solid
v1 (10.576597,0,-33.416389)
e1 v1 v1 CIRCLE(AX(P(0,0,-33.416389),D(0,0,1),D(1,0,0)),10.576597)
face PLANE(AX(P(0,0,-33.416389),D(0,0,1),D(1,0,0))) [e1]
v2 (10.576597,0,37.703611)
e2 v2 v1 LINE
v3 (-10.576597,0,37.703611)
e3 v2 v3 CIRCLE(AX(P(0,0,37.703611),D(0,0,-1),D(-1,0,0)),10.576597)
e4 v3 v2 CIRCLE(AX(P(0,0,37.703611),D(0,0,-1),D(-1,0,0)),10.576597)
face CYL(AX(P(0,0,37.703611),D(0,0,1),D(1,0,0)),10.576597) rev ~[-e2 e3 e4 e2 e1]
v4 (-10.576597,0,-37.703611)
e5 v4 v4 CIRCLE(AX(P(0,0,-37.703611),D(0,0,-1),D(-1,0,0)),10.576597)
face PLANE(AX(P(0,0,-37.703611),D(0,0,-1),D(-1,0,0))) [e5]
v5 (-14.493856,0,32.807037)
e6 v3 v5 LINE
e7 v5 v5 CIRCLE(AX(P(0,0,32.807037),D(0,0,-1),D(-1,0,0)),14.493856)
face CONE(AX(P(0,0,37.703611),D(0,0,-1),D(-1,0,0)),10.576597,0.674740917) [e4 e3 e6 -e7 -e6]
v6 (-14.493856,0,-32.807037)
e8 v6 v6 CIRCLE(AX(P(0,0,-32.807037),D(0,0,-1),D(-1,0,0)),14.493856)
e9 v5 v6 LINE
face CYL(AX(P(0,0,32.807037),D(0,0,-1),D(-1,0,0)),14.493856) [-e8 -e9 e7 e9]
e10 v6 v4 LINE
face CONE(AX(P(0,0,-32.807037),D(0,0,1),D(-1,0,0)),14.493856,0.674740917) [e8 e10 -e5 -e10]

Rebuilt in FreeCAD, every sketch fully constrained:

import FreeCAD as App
import Part
import Sketcher
Q = App.Units.Quantity

doc = App.newDocument("Part")
body = doc.addObject("PartDesign::Body", "Body")

# Sketch on XZ plane
sketch1 = doc.addObject("Sketcher::SketchObject", "Sketch")
body.addObject(sketch1)
sketch1.AttachmentSupport = (doc.XZ_Plane, [""])
sketch1.MapMode = "FlatFace"
sketch1.addGeometry([
    Part.LineSegment(App.Vector(0, 38, 0), App.Vector(-11, 38, 0)),  # 0
    Part.LineSegment(App.Vector(-11, 38, 0), App.Vector(-14, 33, 0)),  # 1
    Part.LineSegment(App.Vector(-14, 33, 0), App.Vector(-14, -33, 0)),  # 2
    Part.LineSegment(App.Vector(-14, -33, 0), App.Vector(-11, -38, 0)),  # 3
    Part.LineSegment(App.Vector(-11, -38, 0), App.Vector(0, -38, 0)),  # 4
    Part.LineSegment(App.Vector(0, -38, 0), App.Vector(0, 38, 0)),  # 5
], False)
sketch1.addConstraint([
    Sketcher.Constraint("Coincident", 0, 2, 1, 1),
    Sketcher.Constraint("Coincident", 1, 2, 2, 1),
    Sketcher.Constraint("Coincident", 2, 2, 3, 1),
    Sketcher.Constraint("Coincident", 3, 2, 4, 1),
    Sketcher.Constraint("Coincident", 4, 2, 5, 1),
    Sketcher.Constraint("Coincident", 5, 2, 0, 1),
    Sketcher.Constraint("Horizontal", 0),
    Sketcher.Constraint("Vertical", 2),
    Sketcher.Constraint("Horizontal", 4),
    Sketcher.Constraint("Vertical", 5),
    Sketcher.Constraint("Symmetric", 4, 2, 5, 2, -1, 1),
    Sketcher.Constraint("Vertical", 0, 2, 3, 2),
    Sketcher.Constraint("Equal", 1, 3),
    Sketcher.Constraint("DistanceX", 0, 2, 0, 1, Q("10.576597 mm")),
    Sketcher.Constraint("DistanceY", 2, 2, 2, 1, Q("65.614074 mm")),
    Sketcher.Constraint("DistanceY", 5, 1, 5, 2, Q("75.407222 mm")),
    Sketcher.Constraint("DistanceX", 1, 2, 0, 2, Q("3.917259 mm")),
])
revolution = doc.addObject("PartDesign::Revolution", "Revolution")
body.addObject(revolution)
revolution.Profile = sketch1
revolution.ReferenceAxis = (sketch1, ["V_Axis"])
revolution.Angle = 360

# Sketch on XY plane
sketch2 = doc.addObject("Sketcher::SketchObject", "Sketch001")
body.addObject(sketch2)
sketch2.AttachmentSupport = (doc.XY_Plane, [""])
sketch2.MapMode = "FlatFace"
sketch2.AttachmentOffset = App.Placement(App.Vector(0, 0, 37.703611), App.Rotation())
sketch2.addGeometry(Part.Circle(App.Vector(0, 0, 0), App.Vector(0, 0, 1), 11), False)
sketch2.addConstraint([
    Sketcher.Constraint("Coincident", 0, 3, -1, 1),
    Sketcher.Constraint("Diameter", 0, Q("21.153194 mm")),
])
pocket1 = doc.addObject("PartDesign::Pocket", "Pocket")
body.addObject(pocket1)
pocket1.Profile = sketch2
pocket1.Length = Q("2.8 in")

doc.recompute()
